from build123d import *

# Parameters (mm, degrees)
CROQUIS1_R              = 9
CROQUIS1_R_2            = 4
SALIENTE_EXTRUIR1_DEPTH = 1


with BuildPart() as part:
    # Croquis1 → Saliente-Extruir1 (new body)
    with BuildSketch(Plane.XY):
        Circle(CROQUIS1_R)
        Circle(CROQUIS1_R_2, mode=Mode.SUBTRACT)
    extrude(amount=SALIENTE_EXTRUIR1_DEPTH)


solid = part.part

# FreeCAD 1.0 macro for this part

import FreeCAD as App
import Part
import Sketcher

doc = App.newDocument("Part")
body = doc.addObject("PartDesign::Body", "Body")

# Sketch on XY plane
sketch1 = doc.addObject("Sketcher::SketchObject", "Sketch")
body.addObject(sketch1)
sketch1.AttachmentSupport = (doc.XY_Plane, [""])
sketch1.MapMode = "FlatFace"
sketch1.addGeometry(Part.Circle(App.Vector(0, 0, 0), App.Vector(0, 0, 1), 9), False)
sketch1.addGeometry(Part.Circle(App.Vector(0, 0, 0), App.Vector(0, 0, 1), 4), False)
sketch1.addConstraint(Sketcher.Constraint("Coincident", 0, 3, -1, 1))
sketch1.addConstraint(Sketcher.Constraint("Coincident", 1, 3, -1, 1))
sketch1.addConstraint(Sketcher.Constraint("Diameter", 0, 18.0))
sketch1.addConstraint(Sketcher.Constraint("Diameter", 1, 8.0))
pad1 = doc.addObject("PartDesign::Pad", "Pad")
body.addObject(pad1)
pad1.Profile = sketch1
pad1.Length = 1

doc.recompute()
